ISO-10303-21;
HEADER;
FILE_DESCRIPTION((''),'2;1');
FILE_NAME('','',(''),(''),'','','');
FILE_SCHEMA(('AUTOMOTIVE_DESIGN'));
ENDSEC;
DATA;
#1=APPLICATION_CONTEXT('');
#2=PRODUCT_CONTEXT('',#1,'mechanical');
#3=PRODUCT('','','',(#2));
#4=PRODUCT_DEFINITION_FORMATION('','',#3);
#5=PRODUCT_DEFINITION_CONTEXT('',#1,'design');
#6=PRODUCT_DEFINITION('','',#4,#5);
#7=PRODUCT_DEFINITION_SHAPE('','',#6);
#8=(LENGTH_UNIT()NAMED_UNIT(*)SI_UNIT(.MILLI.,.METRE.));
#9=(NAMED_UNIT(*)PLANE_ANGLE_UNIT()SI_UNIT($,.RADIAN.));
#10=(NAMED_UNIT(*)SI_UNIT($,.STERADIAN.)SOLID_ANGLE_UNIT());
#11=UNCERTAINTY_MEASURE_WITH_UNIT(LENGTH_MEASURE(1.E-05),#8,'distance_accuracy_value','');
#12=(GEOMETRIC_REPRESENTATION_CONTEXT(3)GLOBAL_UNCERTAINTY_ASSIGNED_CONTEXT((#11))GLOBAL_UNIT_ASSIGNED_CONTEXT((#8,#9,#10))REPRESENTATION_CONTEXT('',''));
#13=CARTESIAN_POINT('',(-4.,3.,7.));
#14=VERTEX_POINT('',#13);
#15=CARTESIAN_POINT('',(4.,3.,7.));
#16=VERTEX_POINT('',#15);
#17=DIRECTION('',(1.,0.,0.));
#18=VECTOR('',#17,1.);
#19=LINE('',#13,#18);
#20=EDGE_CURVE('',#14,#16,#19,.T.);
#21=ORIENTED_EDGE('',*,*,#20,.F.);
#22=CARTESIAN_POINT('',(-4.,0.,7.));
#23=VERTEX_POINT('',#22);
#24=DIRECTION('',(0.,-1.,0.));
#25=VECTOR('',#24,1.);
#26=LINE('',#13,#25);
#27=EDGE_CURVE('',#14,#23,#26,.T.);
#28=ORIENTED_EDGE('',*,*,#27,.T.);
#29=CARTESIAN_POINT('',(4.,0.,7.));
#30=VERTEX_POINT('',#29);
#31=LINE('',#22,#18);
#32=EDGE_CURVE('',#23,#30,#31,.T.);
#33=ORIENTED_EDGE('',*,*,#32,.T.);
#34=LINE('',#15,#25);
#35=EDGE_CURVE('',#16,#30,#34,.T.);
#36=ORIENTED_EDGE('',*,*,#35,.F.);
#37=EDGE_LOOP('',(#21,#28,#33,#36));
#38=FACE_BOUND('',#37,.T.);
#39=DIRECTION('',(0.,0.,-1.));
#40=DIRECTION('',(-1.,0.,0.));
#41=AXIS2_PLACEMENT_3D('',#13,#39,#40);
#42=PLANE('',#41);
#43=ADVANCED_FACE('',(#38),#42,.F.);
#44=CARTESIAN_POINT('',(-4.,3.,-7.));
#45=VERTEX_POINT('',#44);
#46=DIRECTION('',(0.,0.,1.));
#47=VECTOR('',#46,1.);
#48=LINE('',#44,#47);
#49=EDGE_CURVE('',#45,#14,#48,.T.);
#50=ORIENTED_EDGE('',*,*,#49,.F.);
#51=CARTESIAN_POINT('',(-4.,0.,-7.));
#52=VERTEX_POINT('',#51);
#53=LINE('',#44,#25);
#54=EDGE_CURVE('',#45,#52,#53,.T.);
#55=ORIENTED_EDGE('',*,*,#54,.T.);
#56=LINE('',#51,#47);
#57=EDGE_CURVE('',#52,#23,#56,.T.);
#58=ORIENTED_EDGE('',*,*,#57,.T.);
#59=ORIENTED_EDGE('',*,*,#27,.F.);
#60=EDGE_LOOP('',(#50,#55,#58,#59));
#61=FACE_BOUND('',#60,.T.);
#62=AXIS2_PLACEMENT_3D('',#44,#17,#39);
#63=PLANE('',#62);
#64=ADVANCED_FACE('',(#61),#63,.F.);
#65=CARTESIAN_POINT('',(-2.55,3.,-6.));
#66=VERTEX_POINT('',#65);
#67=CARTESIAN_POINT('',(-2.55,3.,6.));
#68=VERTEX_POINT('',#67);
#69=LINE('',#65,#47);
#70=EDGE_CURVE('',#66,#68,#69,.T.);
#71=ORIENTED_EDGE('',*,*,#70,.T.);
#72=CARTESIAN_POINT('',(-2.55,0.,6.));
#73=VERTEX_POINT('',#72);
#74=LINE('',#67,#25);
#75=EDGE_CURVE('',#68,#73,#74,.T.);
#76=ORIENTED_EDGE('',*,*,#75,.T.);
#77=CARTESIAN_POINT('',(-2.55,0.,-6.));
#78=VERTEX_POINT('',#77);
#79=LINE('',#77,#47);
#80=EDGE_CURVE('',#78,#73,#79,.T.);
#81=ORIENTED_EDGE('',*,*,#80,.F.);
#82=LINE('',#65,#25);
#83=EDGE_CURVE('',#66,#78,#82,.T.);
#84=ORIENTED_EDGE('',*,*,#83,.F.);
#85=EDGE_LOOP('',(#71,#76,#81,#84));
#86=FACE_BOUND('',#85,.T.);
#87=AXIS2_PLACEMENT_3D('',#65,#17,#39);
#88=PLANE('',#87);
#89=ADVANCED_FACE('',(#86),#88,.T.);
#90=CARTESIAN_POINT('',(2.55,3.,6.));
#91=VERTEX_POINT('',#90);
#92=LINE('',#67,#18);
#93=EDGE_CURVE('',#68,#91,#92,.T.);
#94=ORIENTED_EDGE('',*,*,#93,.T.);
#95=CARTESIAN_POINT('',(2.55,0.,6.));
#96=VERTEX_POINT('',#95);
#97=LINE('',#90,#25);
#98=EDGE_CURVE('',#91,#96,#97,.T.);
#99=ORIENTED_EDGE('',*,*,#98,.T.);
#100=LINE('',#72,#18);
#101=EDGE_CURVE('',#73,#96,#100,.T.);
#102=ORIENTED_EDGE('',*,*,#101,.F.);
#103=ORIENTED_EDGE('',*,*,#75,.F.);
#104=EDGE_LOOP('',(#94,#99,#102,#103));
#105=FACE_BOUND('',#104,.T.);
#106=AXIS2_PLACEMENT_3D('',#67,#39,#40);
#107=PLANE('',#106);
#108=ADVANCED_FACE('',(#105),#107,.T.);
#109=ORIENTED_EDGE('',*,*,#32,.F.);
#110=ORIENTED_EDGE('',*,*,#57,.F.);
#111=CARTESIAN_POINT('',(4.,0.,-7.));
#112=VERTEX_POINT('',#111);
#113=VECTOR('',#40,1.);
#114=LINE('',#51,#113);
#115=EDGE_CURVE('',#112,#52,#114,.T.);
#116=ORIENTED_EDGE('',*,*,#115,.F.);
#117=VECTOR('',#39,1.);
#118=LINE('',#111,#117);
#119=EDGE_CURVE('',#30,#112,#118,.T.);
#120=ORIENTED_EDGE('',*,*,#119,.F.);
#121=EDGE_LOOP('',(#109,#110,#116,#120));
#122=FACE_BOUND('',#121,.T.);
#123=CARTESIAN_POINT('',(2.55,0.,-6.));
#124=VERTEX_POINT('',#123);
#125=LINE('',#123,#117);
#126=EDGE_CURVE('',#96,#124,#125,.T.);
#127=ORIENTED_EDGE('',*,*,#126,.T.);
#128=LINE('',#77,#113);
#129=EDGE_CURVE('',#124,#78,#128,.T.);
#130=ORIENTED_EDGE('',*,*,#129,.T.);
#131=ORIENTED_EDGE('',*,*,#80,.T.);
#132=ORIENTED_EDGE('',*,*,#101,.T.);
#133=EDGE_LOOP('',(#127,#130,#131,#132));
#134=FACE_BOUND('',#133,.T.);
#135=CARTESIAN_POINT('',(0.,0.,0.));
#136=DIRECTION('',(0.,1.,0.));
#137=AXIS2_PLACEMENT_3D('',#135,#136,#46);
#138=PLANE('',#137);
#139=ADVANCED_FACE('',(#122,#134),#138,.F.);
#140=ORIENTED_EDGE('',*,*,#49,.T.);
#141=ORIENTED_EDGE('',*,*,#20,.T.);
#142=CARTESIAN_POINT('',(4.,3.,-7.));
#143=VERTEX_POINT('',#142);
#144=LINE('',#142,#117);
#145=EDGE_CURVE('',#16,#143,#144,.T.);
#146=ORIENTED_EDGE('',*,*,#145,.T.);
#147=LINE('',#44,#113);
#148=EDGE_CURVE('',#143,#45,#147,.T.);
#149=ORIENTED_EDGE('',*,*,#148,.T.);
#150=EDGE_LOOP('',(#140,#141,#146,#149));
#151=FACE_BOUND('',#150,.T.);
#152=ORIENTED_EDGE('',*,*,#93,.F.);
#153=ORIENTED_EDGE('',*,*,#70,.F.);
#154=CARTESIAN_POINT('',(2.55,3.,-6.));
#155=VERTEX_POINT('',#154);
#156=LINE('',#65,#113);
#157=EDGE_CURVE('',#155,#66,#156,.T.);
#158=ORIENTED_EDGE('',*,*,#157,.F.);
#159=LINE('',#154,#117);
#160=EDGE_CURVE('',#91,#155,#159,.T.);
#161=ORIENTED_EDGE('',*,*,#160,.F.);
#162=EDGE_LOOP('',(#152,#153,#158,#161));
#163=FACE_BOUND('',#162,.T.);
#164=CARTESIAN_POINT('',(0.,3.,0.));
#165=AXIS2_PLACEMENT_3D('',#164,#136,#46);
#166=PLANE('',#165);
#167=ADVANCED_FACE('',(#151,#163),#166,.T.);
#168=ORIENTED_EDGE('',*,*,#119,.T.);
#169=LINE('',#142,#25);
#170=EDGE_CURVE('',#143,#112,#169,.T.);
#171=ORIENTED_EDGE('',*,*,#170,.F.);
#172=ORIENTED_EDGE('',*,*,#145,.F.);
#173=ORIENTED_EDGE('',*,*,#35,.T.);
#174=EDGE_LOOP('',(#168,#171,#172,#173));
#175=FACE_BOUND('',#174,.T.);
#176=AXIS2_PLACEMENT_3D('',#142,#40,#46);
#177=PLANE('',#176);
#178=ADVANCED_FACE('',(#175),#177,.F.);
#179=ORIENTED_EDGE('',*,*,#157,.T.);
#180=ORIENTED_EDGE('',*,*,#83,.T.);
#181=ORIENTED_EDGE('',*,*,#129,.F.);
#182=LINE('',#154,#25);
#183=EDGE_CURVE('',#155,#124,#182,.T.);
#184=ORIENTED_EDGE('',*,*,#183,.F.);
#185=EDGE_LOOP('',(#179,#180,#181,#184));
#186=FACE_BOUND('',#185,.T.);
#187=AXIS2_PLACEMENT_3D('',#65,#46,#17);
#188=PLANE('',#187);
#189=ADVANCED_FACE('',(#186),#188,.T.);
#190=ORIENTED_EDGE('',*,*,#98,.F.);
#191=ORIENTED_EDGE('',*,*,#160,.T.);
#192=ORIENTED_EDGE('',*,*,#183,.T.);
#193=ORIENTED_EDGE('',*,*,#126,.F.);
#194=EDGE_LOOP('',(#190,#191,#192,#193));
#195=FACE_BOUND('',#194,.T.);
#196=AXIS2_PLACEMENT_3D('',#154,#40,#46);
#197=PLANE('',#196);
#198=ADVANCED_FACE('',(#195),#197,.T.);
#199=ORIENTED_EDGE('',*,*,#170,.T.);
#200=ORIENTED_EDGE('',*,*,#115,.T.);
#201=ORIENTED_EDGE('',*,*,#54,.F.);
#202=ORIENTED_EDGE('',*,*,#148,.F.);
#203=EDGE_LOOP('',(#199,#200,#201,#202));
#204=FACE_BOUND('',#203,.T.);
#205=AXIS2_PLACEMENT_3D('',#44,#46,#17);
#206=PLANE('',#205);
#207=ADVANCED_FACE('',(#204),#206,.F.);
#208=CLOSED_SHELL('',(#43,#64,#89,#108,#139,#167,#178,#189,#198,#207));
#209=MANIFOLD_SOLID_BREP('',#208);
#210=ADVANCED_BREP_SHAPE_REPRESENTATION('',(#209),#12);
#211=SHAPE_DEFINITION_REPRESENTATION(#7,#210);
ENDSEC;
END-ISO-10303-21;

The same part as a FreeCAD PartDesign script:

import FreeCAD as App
import Part
import Sketcher

V = App.Vector

doc = App.newDocument("Part")
params = doc.addObject("Spreadsheet::Sheet", "Params")
for row, (alias, value) in enumerate([
    ("sketch1_width", "8 mm"),
    ("sketch1_height", "14 mm"),
    ("sketch1_height2", "12 mm"),
    ("sketch1_width2", "5.1 mm"),
    ("pad1_length", "3 mm"),
], start=1):
    params.set(f"A{row}", alias)
    params.set(f"B{row}", "=" + value)
    params.setAlias(f"B{row}", alias)

body = doc.addObject("PartDesign::Body", "Body")

sketch1 = body.newObject("Sketcher::SketchObject", "Sketch")
sketch1.AttachmentSupport = (doc.getObject("XZ_Plane"), [""])
sketch1.MapMode = "FlatFace"
sketch1.addGeometry(Part.LineSegment(V(-4, -7, 0), V(-4, 7, 0)), False)
sketch1.addGeometry(Part.LineSegment(V(-4, 7, 0), V(4, 7, 0)), False)
sketch1.addGeometry(Part.LineSegment(V(4, 7, 0), V(4, -7, 0)), False)
sketch1.addGeometry(Part.LineSegment(V(4, -7, 0), V(-4, -7, 0)), False)
sketch1.addGeometry(Part.LineSegment(V(3, 6, 0), V(-3, 6, 0)), False)
sketch1.addGeometry(Part.LineSegment(V(-3, 6, 0), V(-3, -6, 0)), False)
sketch1.addGeometry(Part.LineSegment(V(-3, -6, 0), V(3, -6, 0)), False)
sketch1.addGeometry(Part.LineSegment(V(3, -6, 0), V(3, 6, 0)), False)
sketch1.addConstraint(Sketcher.Constraint("Coincident", 0, 2, 1, 1))
sketch1.addConstraint(Sketcher.Constraint("Coincident", 1, 2, 2, 1))
sketch1.addConstraint(Sketcher.Constraint("Coincident", 2, 2, 3, 1))
sketch1.addConstraint(Sketcher.Constraint("Coincident", 3, 2, 0, 1))
sketch1.addConstraint(Sketcher.Constraint("Coincident", 4, 2, 5, 1))
sketch1.addConstraint(Sketcher.Constraint("Coincident", 5, 2, 6, 1))
sketch1.addConstraint(Sketcher.Constraint("Coincident", 6, 2, 7, 1))
sketch1.addConstraint(Sketcher.Constraint("Coincident", 7, 2, 4, 1))
sketch1.addConstraint(Sketcher.Constraint("Vertical", 0))
sketch1.addConstraint(Sketcher.Constraint("Horizontal", 1))
sketch1.addConstraint(Sketcher.Constraint("Vertical", 2))
sketch1.addConstraint(Sketcher.Constraint("Horizontal", 3))
sketch1.addConstraint(Sketcher.Constraint("Horizontal", 4))
sketch1.addConstraint(Sketcher.Constraint("Vertical", 5))
sketch1.addConstraint(Sketcher.Constraint("Horizontal", 6))
sketch1.addConstraint(Sketcher.Constraint("Vertical", 7))
sketch1.addConstraint(Sketcher.Constraint("Symmetric", 0, 2, 2, 2, -1, 1))
sketch1.addConstraint(Sketcher.Constraint("Symmetric", 4, 2, 6, 2, -1, 1))
sketch1.addConstraint(Sketcher.Constraint("DistanceX", 1, 1, 1, 2, 8.0))
sketch1.addConstraint(Sketcher.Constraint("DistanceY", 0, 1, 0, 2, 14.0))
sketch1.addConstraint(Sketcher.Constraint("DistanceY", 5, 2, 5, 1, 12.0))
sketch1.addConstraint(Sketcher.Constraint("DistanceX", 4, 2, 4, 1, 5.1))
sketch1.setExpression("Constraints[18]", "Params.sketch1_width")
sketch1.setExpression("Constraints[19]", "Params.sketch1_height")
sketch1.setExpression("Constraints[20]", "Params.sketch1_height2")
sketch1.setExpression("Constraints[21]", "Params.sketch1_width2")
pad1 = body.newObject("PartDesign::Pad", "Pad")
pad1.Profile = sketch1
pad1.setExpression("Length", "Params.pad1_length")
pad1.Reversed = True

doc.recompute()
